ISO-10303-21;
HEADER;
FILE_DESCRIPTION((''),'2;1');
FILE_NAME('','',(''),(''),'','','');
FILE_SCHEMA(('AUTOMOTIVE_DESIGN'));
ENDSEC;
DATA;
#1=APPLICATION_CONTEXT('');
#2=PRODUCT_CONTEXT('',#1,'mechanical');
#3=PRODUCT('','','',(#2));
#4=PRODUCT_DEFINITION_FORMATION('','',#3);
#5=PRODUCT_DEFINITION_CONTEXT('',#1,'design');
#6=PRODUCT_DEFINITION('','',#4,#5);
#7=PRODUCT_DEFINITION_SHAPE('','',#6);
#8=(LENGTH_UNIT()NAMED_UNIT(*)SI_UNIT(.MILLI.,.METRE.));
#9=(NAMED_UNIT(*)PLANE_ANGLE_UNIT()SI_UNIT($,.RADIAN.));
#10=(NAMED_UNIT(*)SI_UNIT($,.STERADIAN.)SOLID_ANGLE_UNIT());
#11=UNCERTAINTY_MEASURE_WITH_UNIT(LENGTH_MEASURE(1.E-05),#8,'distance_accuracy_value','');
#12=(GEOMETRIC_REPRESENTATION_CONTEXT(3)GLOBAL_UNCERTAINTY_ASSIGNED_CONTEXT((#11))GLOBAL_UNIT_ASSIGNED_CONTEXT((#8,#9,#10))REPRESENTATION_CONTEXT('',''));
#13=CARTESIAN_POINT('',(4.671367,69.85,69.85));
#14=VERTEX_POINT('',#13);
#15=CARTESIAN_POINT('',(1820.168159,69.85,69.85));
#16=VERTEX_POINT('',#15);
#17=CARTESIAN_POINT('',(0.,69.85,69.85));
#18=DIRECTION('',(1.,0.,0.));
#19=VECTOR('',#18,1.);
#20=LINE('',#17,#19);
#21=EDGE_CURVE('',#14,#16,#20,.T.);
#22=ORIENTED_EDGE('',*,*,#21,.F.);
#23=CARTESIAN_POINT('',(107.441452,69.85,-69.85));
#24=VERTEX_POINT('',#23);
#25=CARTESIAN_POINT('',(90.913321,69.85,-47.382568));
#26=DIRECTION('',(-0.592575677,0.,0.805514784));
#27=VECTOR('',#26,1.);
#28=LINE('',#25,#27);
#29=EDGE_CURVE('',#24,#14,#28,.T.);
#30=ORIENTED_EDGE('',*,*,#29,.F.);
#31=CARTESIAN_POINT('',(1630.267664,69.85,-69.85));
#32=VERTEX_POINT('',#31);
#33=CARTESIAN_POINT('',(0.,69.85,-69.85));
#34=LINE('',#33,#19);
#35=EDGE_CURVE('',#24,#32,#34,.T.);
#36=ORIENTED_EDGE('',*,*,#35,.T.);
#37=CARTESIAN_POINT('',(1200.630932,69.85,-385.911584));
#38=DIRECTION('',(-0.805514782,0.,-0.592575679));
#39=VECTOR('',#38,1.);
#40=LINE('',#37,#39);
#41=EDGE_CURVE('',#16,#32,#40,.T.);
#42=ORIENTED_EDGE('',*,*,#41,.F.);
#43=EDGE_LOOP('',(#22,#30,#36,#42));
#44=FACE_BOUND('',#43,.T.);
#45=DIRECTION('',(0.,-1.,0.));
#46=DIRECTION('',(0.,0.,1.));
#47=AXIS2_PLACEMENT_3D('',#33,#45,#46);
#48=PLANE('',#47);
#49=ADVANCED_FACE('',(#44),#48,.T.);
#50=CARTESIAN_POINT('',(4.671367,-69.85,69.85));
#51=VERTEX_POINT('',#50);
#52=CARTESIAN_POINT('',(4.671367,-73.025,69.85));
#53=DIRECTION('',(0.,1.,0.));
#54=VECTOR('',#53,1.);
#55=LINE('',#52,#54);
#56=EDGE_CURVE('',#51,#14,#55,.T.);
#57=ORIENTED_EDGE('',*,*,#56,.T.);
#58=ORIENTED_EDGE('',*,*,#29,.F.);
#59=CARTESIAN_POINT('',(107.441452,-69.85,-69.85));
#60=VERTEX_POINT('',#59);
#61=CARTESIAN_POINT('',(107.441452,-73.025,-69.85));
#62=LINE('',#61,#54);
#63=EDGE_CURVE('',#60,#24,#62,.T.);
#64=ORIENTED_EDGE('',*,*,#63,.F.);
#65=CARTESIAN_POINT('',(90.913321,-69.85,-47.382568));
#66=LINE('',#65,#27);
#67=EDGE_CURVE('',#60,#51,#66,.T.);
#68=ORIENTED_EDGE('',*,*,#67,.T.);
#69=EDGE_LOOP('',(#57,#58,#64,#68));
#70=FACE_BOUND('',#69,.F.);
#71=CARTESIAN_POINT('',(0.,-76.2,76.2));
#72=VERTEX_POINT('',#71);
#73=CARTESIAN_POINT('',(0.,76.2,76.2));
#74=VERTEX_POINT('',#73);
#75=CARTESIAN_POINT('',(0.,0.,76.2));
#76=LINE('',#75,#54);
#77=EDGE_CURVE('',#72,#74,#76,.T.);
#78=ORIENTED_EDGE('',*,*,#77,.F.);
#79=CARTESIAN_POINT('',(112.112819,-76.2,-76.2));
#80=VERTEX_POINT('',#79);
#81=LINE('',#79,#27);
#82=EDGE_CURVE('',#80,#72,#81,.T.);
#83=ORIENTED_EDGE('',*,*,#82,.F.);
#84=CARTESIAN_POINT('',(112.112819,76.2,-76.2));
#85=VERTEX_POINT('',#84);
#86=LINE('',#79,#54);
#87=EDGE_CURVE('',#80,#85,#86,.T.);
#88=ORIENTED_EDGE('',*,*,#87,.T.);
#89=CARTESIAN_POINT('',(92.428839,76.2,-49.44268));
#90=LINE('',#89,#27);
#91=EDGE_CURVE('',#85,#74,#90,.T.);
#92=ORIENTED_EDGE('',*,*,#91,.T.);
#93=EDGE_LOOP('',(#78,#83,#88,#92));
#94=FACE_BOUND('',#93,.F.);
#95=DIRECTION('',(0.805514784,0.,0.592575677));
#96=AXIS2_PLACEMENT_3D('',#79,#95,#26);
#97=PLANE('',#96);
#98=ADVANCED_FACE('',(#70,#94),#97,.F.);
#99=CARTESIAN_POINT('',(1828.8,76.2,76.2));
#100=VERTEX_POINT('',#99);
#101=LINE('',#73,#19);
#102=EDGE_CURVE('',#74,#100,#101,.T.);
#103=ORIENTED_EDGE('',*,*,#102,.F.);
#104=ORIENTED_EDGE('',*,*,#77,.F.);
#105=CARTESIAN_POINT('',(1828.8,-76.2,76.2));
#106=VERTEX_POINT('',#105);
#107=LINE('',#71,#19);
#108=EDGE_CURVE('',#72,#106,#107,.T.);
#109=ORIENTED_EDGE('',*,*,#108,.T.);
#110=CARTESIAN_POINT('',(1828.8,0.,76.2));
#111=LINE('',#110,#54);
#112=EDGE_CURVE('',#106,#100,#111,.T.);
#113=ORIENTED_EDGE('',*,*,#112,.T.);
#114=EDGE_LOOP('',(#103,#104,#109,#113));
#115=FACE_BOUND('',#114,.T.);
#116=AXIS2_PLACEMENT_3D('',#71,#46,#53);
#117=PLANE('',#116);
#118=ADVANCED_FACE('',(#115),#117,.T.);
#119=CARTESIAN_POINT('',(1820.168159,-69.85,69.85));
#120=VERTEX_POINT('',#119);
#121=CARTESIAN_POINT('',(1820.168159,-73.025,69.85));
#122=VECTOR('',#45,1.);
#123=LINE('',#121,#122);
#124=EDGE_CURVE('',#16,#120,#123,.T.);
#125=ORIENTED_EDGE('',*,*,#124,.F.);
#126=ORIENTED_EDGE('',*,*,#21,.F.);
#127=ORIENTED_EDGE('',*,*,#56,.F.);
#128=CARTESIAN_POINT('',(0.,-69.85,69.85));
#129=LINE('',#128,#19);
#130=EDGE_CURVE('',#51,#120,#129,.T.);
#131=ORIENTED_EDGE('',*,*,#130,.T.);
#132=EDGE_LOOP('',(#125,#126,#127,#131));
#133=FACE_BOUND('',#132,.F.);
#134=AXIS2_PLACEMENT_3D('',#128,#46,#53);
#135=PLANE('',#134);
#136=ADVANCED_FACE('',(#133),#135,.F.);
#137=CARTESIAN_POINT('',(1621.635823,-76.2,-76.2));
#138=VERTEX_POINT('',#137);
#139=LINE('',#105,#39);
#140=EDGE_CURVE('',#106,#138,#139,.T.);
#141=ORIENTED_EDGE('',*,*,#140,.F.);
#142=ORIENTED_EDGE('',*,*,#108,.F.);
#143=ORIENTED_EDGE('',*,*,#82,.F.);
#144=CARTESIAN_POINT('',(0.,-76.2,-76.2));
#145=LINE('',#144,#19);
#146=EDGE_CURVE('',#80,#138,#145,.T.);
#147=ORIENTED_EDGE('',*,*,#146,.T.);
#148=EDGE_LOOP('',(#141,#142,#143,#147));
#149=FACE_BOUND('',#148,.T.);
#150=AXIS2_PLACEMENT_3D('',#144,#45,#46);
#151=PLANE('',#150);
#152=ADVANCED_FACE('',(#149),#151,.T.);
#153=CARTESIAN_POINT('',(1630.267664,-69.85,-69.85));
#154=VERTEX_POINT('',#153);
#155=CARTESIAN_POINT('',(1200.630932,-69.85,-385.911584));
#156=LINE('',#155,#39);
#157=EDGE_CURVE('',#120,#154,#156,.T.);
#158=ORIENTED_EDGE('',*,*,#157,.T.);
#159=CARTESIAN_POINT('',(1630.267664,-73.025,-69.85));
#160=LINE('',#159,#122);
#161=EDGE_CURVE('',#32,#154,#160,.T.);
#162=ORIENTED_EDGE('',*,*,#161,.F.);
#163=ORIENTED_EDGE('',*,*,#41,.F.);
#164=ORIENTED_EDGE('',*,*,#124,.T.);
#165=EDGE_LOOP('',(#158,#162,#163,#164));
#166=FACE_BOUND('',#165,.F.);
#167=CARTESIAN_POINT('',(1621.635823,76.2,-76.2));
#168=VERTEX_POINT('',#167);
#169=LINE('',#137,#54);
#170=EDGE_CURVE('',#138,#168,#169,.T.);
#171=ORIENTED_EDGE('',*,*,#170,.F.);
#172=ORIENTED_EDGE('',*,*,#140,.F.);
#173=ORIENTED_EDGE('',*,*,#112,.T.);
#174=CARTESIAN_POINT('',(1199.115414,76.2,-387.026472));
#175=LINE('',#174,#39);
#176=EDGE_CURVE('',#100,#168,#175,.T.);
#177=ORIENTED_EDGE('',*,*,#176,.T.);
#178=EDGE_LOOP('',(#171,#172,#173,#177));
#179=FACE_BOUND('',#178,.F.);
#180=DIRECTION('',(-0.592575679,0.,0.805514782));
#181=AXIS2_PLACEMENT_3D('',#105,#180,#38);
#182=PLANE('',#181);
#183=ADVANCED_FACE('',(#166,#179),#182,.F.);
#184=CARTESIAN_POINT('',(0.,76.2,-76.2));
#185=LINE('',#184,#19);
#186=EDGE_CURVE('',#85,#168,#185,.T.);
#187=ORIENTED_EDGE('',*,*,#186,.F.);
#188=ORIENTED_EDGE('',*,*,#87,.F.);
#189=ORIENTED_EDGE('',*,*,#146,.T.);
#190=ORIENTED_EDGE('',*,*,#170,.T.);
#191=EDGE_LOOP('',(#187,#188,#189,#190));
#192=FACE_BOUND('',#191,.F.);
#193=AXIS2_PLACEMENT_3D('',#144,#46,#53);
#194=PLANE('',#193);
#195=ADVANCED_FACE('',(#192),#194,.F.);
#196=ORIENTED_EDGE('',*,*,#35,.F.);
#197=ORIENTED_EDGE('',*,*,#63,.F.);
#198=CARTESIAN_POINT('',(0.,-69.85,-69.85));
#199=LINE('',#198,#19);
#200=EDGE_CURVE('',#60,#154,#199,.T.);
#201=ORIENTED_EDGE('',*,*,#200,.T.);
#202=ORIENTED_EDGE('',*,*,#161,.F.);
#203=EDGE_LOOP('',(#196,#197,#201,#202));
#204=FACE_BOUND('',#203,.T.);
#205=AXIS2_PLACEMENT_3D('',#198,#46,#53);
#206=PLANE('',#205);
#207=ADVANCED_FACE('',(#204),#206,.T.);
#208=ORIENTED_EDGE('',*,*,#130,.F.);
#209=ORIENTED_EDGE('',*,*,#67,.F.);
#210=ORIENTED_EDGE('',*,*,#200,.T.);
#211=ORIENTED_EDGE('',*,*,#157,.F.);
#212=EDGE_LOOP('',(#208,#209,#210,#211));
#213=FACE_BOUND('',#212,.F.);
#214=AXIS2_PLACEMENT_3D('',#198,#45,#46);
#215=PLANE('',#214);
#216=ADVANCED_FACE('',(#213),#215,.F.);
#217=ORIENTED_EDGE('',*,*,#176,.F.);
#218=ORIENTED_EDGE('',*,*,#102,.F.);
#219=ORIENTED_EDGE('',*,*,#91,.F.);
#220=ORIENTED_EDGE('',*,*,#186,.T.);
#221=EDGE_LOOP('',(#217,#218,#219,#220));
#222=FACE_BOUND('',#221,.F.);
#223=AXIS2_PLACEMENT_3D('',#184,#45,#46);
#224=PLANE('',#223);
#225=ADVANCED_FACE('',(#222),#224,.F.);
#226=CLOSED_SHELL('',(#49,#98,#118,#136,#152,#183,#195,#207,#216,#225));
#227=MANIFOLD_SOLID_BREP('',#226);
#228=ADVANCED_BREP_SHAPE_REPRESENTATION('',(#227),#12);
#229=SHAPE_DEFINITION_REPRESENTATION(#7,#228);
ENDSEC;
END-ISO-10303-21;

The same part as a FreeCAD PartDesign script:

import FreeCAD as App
import Part
import Sketcher
Q = App.Units.Quantity


def add_polygon(sketch, points):
    """Adds a closed chain of lines whose ends are joined by coincident constraints."""
    first, n = sketch.GeometryCount, len(points)
    for a, b in zip(points, points[1:] + points[:1]):
        sketch.addGeometry(Part.LineSegment(App.Vector(*a, 0), App.Vector(*b, 0)), False)
    for i in range(n):
        sketch.addConstraint(Sketcher.Constraint("Coincident", first + i, 2, first + (i + 1) % n, 1))

doc = App.newDocument("Part")
body = doc.addObject("PartDesign::Body", "Body")

sketch1 = body.newObject("Sketcher::SketchObject", "Sketch")
sketch1.AttachmentSupport = (doc.getObject("YZ_Plane"), [""])
sketch1.MapMode = "FlatFace"
add_polygon(sketch1, [(-76, 76), (-76, -76), (76, -76), (76, 76)])
add_polygon(sketch1, [(70, -70), (-70, -70), (-70, 70), (70, 70)])
sketch1.addConstraint([
    Sketcher.Constraint("Vertical", 0),
    Sketcher.Constraint("Horizontal", 1),
    Sketcher.Constraint("Vertical", 2),
    Sketcher.Constraint("Horizontal", 3),
    Sketcher.Constraint("Horizontal", 4),
    Sketcher.Constraint("Vertical", 5),
    Sketcher.Constraint("Horizontal", 6),
    Sketcher.Constraint("Vertical", 7),
    Sketcher.Constraint("Symmetric", 0, 2, 2, 2, -1, 1),
    Sketcher.Constraint("Symmetric", 4, 2, 6, 2, -1, 1),
    Sketcher.Constraint("Equal", 3, 0),
    Sketcher.Constraint("Equal", 6, 5),
    Sketcher.Constraint("DistanceX", 1, 1, 1, 2, Q("6 in")),
    Sketcher.Constraint("DistanceX", 4, 2, 4, 1, Q("5.5 in")),
])
pad1 = body.newObject("PartDesign::Pad", "Pad")
pad1.Profile = sketch1
pad1.Length = Q("72 in")

sketch2 = body.newObject("Sketcher::SketchObject", "Sketch001")
sketch2.AttachmentSupport = (doc.getObject("XZ_Plane"), [""])
sketch2.MapMode = "FlatFace"
sketch2.AttachmentOffset = App.Placement(App.Vector(0, 0, 3 * 25.4), App.Rotation())
add_polygon(sketch2, [(112, -76), (0, 76), (0, -76)])
add_polygon(sketch2, [(1829, -76), (1829, 76), (1622, -76)])
sketch2.addConstraint([
    Sketcher.Constraint("Vertical", 1),
    Sketcher.Constraint("Horizontal", 2),
    Sketcher.Constraint("Vertical", 3),
    Sketcher.Constraint("Horizontal", 5),
    Sketcher.Constraint("Symmetric", 0, 2, 1, 2, -1, 1),
    Sketcher.Constraint("Perpendicular", 0, 4),
    Sketcher.Constraint("Horizontal", 0, 2, 3, 2),
    Sketcher.Constraint("Horizontal", 2, 2, 4, 2),
    Sketcher.Constraint("DistanceY", 1, 2, 1, 1, Q("6 in")),
    Sketcher.Constraint("DistanceX", -1, 1, 3, 2, Q("72 in")),
    Sketcher.Constraint("Angle", 0, Q("126.34 deg")),
])
pocket1 = body.newObject("PartDesign::Pocket", "Pocket")
pocket1.Profile = sketch2
pocket1.Length = Q("8 in")

doc.recompute()
